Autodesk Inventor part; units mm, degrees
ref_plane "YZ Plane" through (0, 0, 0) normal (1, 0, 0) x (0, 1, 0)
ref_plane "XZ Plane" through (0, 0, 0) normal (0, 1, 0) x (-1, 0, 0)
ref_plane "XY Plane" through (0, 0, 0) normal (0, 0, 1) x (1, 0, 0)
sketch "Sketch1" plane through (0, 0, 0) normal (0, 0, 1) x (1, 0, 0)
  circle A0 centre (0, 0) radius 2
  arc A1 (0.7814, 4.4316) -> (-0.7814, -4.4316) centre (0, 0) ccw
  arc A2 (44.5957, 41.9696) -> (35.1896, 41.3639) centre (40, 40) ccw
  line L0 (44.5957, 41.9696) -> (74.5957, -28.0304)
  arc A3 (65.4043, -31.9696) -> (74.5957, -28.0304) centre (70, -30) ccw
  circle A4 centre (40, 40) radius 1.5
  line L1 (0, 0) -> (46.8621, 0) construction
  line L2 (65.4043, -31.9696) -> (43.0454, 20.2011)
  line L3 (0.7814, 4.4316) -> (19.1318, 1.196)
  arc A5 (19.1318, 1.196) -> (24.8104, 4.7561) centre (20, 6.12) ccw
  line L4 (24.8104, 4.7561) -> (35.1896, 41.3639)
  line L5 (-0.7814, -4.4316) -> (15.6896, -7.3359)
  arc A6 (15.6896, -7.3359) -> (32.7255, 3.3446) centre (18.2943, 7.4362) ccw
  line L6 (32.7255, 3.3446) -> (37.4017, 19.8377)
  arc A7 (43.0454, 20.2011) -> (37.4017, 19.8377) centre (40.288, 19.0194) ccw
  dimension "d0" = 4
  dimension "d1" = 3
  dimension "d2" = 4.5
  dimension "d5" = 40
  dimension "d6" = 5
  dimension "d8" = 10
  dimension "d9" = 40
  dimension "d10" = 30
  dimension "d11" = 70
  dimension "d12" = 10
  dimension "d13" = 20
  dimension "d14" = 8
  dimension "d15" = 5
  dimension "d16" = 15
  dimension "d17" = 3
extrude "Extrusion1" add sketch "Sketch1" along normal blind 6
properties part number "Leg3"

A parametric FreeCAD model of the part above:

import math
import FreeCAD as App
import Part
import Sketcher
Q = App.Units.Quantity

doc = App.newDocument("Part")
params = doc.addObject("Spreadsheet::Sheet", "Params")
for row, (alias, value) in enumerate([
    ("sketch1_diameter", "4 mm"),
    ("sketch1_diameter2", "3 mm"),
    ("sketch1_radius", "15 mm"),
    ("sketch1_radius2", "3 mm"),
    ("sketch1_radius3", "5 mm"),
    ("pad1_length", "6 mm"),
], start=1):
    params.set(f"A{row}", alias)
    params.set(f"B{row}", "=" + value)
    params.setAlias(f"B{row}", alias)

body = doc.addObject("PartDesign::Body", "Body")

# Sketch on XY plane
sketch1 = body.newObject("Sketcher::SketchObject", "Sketch")
sketch1.AttachmentSupport = (doc.getObject("XY_Plane"), [""])
sketch1.MapMode = "FlatFace"
sketch1.addGeometry([
    Part.LineSegment(App.Vector(19.1, 1.2, 0), App.Vector(0.8, 4.4, 0)),  # 0
    Part.ArcOfCircle(Part.Circle(App.Vector(0, 0, 0), App.Vector(0, 0, 1), 4.5), math.radians(80), math.radians(260)),  # 1
    Part.LineSegment(App.Vector(-0.8, -4.4, 0), App.Vector(15.7, -7.3, 0)),  # 2
    Part.ArcOfCircle(Part.Circle(App.Vector(18.3, 7.4, 0), App.Vector(0, 0, 1), 15), math.radians(-100), math.radians(-16)),  # 3
    Part.LineSegment(App.Vector(32.7, 3.3, 0), App.Vector(37.4, 19.8, 0)),  # 4
    Part.ArcOfCircle(Part.Circle(App.Vector(40.3, 19, 0), App.Vector(0, 0, 1), 3), math.radians(23), math.radians(164)),  # 5
    Part.LineSegment(App.Vector(43, 20.2, 0), App.Vector(65.4, -32, 0)),  # 6
    Part.ArcOfCircle(Part.Circle(App.Vector(70, -30, 0), App.Vector(0, 0, 1), 5), math.radians(-157), math.radians(23)),  # 7
    Part.LineSegment(App.Vector(74.6, -28, 0), App.Vector(44.6, 42, 0)),  # 8
    Part.ArcOfCircle(Part.Circle(App.Vector(40, 40, 0), App.Vector(0, 0, 1), 5), math.radians(23), math.radians(164)),  # 9
    Part.LineSegment(App.Vector(35.2, 41.4, 0), App.Vector(24.8, 4.8, 0)),  # 10
    Part.ArcOfCircle(Part.Circle(App.Vector(20, 6.1, 0), App.Vector(0, 0, 1), 5), math.radians(-100), math.radians(-16)),  # 11
    Part.Circle(App.Vector(0, 0, 0), App.Vector(0, 0, 1), 2),  # 12
    Part.Circle(App.Vector(40, 40, 0), App.Vector(0, 0, 1), 1.5),  # 13
], False)
sketch1.addConstraint([
    Sketcher.Constraint("Tangent", 0, 2, 1, 1),
    Sketcher.Constraint("Tangent", 1, 2, 2, 1),
    Sketcher.Constraint("Tangent", 2, 2, 3, 1),
    Sketcher.Constraint("Tangent", 3, 2, 4, 1),
    Sketcher.Constraint("Tangent", 4, 2, 5, 2),
    Sketcher.Constraint("Tangent", 5, 1, 6, 1),
    Sketcher.Constraint("Tangent", 6, 2, 7, 1),
    Sketcher.Constraint("Tangent", 7, 2, 8, 1),
    Sketcher.Constraint("Tangent", 8, 2, 9, 1),
    Sketcher.Constraint("Tangent", 9, 2, 10, 1),
    Sketcher.Constraint("Tangent", 10, 2, 11, 2),
    Sketcher.Constraint("Tangent", 11, 1, 0, 1),
    Sketcher.Constraint("Coincident", 1, 3, -1, 1),
    Sketcher.Constraint("Coincident", 12, 3, -1, 1),
    Sketcher.Constraint("Coincident", 13, 3, 9, 3),
    Sketcher.Constraint("Equal", 7, 9),
    Sketcher.Constraint("Equal", 9, 11),
    Sketcher.Constraint("Parallel", 0, 2),
    Sketcher.Constraint("Parallel", 6, 8),
    Sketcher.Constraint("Parallel", 4, 10),
    Sketcher.Constraint("Diameter", 12, 4.0),
    Sketcher.Constraint("Diameter", 13, 3.0),
    Sketcher.Constraint("Radius", 3, 15.0),
    Sketcher.Constraint("Radius", 5, 3.0),
    Sketcher.Constraint("Radius", 7, 5.0),
    Sketcher.Constraint("Radius", 1, 4.5),
    Sketcher.Constraint("Angle", 2, Q("-10 deg")),
    Sketcher.Constraint("DistanceX", -1, 1, 7, 3, 70.0),
    Sketcher.Constraint("DistanceY", 7, 3, -1, 1, 30.0),
    Sketcher.Constraint("DistanceX", -1, 1, 9, 3, 40.0),
    Sketcher.Constraint("DistanceY", -1, 1, 9, 3, 40.0),
    Sketcher.Constraint("DistanceX", -1, 1, 11, 3, 20.0),
    Sketcher.Constraint("Distance", 6, 56.76),
])
sketch1.setExpression("Constraints[20]", "Params.sketch1_diameter")
sketch1.setExpression("Constraints[21]", "Params.sketch1_diameter2")
sketch1.setExpression("Constraints[22]", "Params.sketch1_radius")
sketch1.setExpression("Constraints[23]", "Params.sketch1_radius2")
sketch1.setExpression("Constraints[24]", "Params.sketch1_radius3")
pad1 = body.newObject("PartDesign::Pad", "Pad")
pad1.Profile = sketch1
pad1.setExpression("Length", "Params.pad1_length")

doc.recompute()
